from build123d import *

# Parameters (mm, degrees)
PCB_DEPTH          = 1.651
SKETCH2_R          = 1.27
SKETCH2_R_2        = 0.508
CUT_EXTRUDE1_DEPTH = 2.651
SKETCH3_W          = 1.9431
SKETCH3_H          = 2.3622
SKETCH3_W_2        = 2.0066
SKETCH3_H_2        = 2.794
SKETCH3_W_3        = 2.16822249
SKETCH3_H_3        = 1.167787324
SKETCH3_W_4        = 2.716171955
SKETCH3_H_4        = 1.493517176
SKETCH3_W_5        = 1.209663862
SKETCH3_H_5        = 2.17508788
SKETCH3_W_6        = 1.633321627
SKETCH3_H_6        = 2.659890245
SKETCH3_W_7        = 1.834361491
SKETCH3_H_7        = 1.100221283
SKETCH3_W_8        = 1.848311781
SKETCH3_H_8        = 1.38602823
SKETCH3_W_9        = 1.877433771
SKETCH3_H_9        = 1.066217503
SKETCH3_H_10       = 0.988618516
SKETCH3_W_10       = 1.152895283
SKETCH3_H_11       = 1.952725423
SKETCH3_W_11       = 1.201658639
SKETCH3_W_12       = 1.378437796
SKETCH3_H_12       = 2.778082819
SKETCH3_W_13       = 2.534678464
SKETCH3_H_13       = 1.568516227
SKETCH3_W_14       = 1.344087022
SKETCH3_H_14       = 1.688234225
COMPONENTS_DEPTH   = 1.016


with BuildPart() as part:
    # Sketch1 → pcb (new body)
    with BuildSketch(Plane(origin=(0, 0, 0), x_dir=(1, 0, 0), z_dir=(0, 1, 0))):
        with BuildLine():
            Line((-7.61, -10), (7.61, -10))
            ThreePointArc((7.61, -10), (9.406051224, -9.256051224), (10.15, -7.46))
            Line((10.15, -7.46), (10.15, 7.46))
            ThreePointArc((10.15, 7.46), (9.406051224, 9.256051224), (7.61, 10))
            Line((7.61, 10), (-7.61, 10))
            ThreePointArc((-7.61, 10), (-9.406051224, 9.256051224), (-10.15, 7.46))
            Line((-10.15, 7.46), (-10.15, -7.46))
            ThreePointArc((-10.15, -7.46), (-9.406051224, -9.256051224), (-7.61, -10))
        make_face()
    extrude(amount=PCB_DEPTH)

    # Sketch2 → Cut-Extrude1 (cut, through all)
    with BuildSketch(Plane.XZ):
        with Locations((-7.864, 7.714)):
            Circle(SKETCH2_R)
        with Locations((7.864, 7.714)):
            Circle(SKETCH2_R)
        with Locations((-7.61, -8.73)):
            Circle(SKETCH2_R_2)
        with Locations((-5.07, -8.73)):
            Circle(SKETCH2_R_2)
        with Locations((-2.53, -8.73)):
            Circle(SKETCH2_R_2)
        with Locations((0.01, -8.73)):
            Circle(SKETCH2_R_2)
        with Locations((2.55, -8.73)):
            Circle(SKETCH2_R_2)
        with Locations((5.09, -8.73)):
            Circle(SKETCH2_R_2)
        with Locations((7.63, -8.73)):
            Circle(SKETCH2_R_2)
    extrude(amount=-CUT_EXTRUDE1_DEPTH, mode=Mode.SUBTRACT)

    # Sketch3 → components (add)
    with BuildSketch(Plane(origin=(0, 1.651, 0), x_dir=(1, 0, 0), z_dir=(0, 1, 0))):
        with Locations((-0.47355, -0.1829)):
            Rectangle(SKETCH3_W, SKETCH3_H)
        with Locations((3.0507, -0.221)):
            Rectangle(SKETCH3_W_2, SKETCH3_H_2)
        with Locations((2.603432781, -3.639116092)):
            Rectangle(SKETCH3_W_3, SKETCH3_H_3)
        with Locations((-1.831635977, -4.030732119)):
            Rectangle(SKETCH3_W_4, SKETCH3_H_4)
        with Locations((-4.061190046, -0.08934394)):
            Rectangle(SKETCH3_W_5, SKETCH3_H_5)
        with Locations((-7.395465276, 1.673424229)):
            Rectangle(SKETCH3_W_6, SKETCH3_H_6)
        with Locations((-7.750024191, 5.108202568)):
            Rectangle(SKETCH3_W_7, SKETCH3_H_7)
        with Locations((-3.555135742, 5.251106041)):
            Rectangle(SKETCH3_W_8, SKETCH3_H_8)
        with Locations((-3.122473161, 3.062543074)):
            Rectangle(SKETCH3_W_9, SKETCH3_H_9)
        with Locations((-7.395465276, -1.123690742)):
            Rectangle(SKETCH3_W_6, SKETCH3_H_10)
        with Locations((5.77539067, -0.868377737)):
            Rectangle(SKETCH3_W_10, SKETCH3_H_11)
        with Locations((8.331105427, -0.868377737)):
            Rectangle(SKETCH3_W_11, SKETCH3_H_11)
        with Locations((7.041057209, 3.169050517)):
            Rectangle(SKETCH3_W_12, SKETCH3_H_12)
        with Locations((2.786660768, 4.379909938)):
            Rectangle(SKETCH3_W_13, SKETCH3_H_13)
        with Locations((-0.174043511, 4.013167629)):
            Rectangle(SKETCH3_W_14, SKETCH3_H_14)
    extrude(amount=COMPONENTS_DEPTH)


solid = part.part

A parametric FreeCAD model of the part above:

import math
import FreeCAD as App
import Part
import Sketcher
Q = App.Units.Quantity

doc = App.newDocument("Part")
body = doc.addObject("PartDesign::Body", "Body")

sketch1 = body.newObject("Sketcher::SketchObject", "Sketch")
sketch1.AttachmentSupport = (doc.getObject("XZ_Plane"), [""])
sketch1.MapMode = "FlatFace"
sketch1.addGeometry([
    Part.LineSegment(App.Vector(-7.6, 10, 0), App.Vector(7.6, 10, 0)),
    Part.ArcOfCircle(Part.Circle(App.Vector(7.6, 7.5, 0), App.Vector(0, 0, 1), 2.5), math.radians(0), math.radians(90)),
    Part.LineSegment(App.Vector(10.2, 7.5, 0), App.Vector(10.2, -7.5, 0)),
    Part.ArcOfCircle(Part.Circle(App.Vector(7.6, -7.5, 0), App.Vector(0, 0, 1), 2.5), math.radians(-90), math.radians(0)),
    Part.LineSegment(App.Vector(7.6, -10, 0), App.Vector(-7.6, -10, 0)),
    Part.ArcOfCircle(Part.Circle(App.Vector(-7.6, -7.5, 0), App.Vector(0, 0, 1), 2.5), math.radians(-180), math.radians(-90)),
    Part.LineSegment(App.Vector(-10.2, -7.5, 0), App.Vector(-10.2, 7.5, 0)),
    Part.ArcOfCircle(Part.Circle(App.Vector(-7.6, 7.5, 0), App.Vector(0, 0, 1), 2.5), math.radians(90), math.radians(180)),
], False)
sketch1.addConstraint([
    Sketcher.Constraint("Tangent", 0, 2, 1, 2),
    Sketcher.Constraint("Tangent", 1, 1, 2, 1),
    Sketcher.Constraint("Tangent", 2, 2, 3, 2),
    Sketcher.Constraint("Tangent", 3, 1, 4, 1),
    Sketcher.Constraint("Tangent", 4, 2, 5, 2),
    Sketcher.Constraint("Tangent", 5, 1, 6, 1),
    Sketcher.Constraint("Tangent", 6, 2, 7, 2),
    Sketcher.Constraint("Tangent", 7, 1, 0, 1),
    Sketcher.Constraint("Horizontal", 0),
    Sketcher.Constraint("Vertical", 2),
    Sketcher.Constraint("Horizontal", 4),
    Sketcher.Constraint("Vertical", 6),
    Sketcher.Constraint("Equal", 1, 3),
    Sketcher.Constraint("Equal", 3, 5),
    Sketcher.Constraint("Equal", 5, 7),
    Sketcher.Constraint("Symmetric", 1, 3, 5, 3, -1, 1),
    Sketcher.Constraint("Radius", 1, Q("0.1 in")),
    Sketcher.Constraint("DistanceX", 0, 1, 0, 2, Q("15.22 mm")),
    Sketcher.Constraint("DistanceY", 2, 2, 2, 1, Q("14.92 mm")),
])
pad1 = body.newObject("PartDesign::Pad", "Pad")
pad1.Profile = sketch1
pad1.Length = Q("0.065 in")
pad1.Reversed = True

sketch2 = body.newObject("Sketcher::SketchObject", "Sketch001")
sketch2.AttachmentSupport = (doc.getObject("XZ_Plane"), [""])
sketch2.MapMode = "FlatFace"
sketch2.addGeometry([
    Part.Circle(App.Vector(-7.9, 7.7, 0), App.Vector(0, 0, 1), 1.3),
    Part.Circle(App.Vector(7.9, 7.7, 0), App.Vector(0, 0, 1), 1.3),
    Part.Circle(App.Vector(-7.6, -8.7, 0), App.Vector(0, 0, 1), 0.5),
    Part.Circle(App.Vector(-5.1, -8.7, 0), App.Vector(0, 0, 1), 0.5),
    Part.Circle(App.Vector(-2.5, -8.7, 0), App.Vector(0, 0, 1), 0.5),
    Part.Circle(App.Vector(0, -8.7, 0), App.Vector(0, 0, 1), 0.5),
    Part.Circle(App.Vector(2.5, -8.7, 0), App.Vector(0, 0, 1), 0.5),
    Part.Circle(App.Vector(5.1, -8.7, 0), App.Vector(0, 0, 1), 0.5),
    Part.Circle(App.Vector(7.6, -8.7, 0), App.Vector(0, 0, 1), 0.5),
], False)
sketch2.addConstraint([
    Sketcher.Constraint("Equal", 0, 1),
    Sketcher.Constraint("Equal", 2, 3),
    Sketcher.Constraint("Equal", 3, 4),
    Sketcher.Constraint("Equal", 4, 5),
    Sketcher.Constraint("Equal", 5, 6),
    Sketcher.Constraint("Equal", 6, 7),
    Sketcher.Constraint("Equal", 7, 8),
    Sketcher.Constraint("Symmetric", 0, 3, 1, 3, -2),
    Sketcher.Constraint("Horizontal", 2, 3, 3, 3),
    Sketcher.Constraint("Horizontal", 3, 3, 4, 3),
    Sketcher.Constraint("Horizontal", 4, 3, 5, 3),
    Sketcher.Constraint("Horizontal", 5, 3, 6, 3),
    Sketcher.Constraint("Horizontal", 6, 3, 7, 3),
    Sketcher.Constraint("Horizontal", 7, 3, 8, 3),
    Sketcher.Constraint("Diameter", 0, Q("0.1 in")),
    Sketcher.Constraint("Diameter", 2, Q("0.04 in")),
    Sketcher.Constraint("DistanceX", 2, 3, 3, 3, Q("0.1 in")),
    Sketcher.Constraint("DistanceX", 3, 3, 4, 3, Q("0.1 in")),
    Sketcher.Constraint("DistanceX", 4, 3, 5, 3, Q("0.1 in")),
    Sketcher.Constraint("DistanceX", 5, 3, 6, 3, Q("0.1 in")),
    Sketcher.Constraint("DistanceX", 6, 3, 7, 3, Q("0.1 in")),
    Sketcher.Constraint("DistanceX", 7, 3, 8, 3, Q("0.1 in")),
    Sketcher.Constraint("DistanceX", 0, 3, 2, 3, Q("0.01 in")),
    Sketcher.Constraint("DistanceX", 0, 3, -1, 1, Q("7.864 mm")),
    Sketcher.Constraint("DistanceY", -1, 1, 0, 3, Q("7.714 mm")),
    Sketcher.Constraint("DistanceY", 2, 3, -1, 1, Q("8.73 mm")),
])
pocket1 = body.newObject("PartDesign::Pocket", "Pocket")
pocket1.Profile = sketch2
pocket1.Type = "ThroughAll"

sketch3 = body.newObject("Sketcher::SketchObject", "Sketch002")
sketch3.AttachmentSupport = (doc.getObject("XZ_Plane"), [""])
sketch3.MapMode = "FlatFace"
sketch3.AttachmentOffset = App.Placement(App.Vector(0, 0, -0.065 * 25.4), App.Rotation())
sketch3.addGeometry([
    Part.LineSegment(App.Vector(-1.4, -1, 0), App.Vector(-1.4, 1.4, 0)),
    Part.LineSegment(App.Vector(-1.4, 1.4, 0), App.Vector(0.5, 1.4, 0)),
    Part.LineSegment(App.Vector(0.5, 1.4, 0), App.Vector(0.5, -1, 0)),
    Part.LineSegment(App.Vector(0.5, -1, 0), App.Vector(-1.4, -1, 0)),
    Part.LineSegment(App.Vector(2, -1.2, 0), App.Vector(2, 1.6, 0)),
    Part.LineSegment(App.Vector(2, 1.6, 0), App.Vector(4.1, 1.6, 0)),
    Part.LineSegment(App.Vector(4.1, 1.6, 0), App.Vector(4.1, -1.2, 0)),
    Part.LineSegment(App.Vector(4.1, -1.2, 0), App.Vector(2, -1.2, 0)),
    Part.LineSegment(App.Vector(1.5, 3.1, 0), App.Vector(1.5, 4.2, 0)),
    Part.LineSegment(App.Vector(1.5, 4.2, 0), App.Vector(3.7, 4.2, 0)),
    Part.LineSegment(App.Vector(3.7, 4.2, 0), App.Vector(3.7, 3.1, 0)),
    Part.LineSegment(App.Vector(3.7, 3.1, 0), App.Vector(1.5, 3.1, 0)),
    Part.LineSegment(App.Vector(-3.2, 3.3, 0), App.Vector(-3.2, 4.8, 0)),
    Part.LineSegment(App.Vector(-3.2, 4.8, 0), App.Vector(-0.5, 4.8, 0)),
    Part.LineSegment(App.Vector(-0.5, 4.8, 0), App.Vector(-0.5, 3.3, 0)),
    Part.LineSegment(App.Vector(-0.5, 3.3, 0), App.Vector(-3.2, 3.3, 0)),
    Part.LineSegment(App.Vector(-4.7, -1, 0), App.Vector(-4.7, 1.2, 0)),
    Part.LineSegment(App.Vector(-4.7, 1.2, 0), App.Vector(-3.5, 1.2, 0)),
    Part.LineSegment(App.Vector(-3.5, 1.2, 0), App.Vector(-3.5, -1, 0)),
    Part.LineSegment(App.Vector(-3.5, -1, 0), App.Vector(-4.7, -1, 0)),
    Part.LineSegment(App.Vector(-8.2, -3, 0), App.Vector(-8.2, -0.3, 0)),
    Part.LineSegment(App.Vector(-8.2, -0.3, 0), App.Vector(-6.6, -0.3, 0)),
    Part.LineSegment(App.Vector(-6.6, -0.3, 0), App.Vector(-6.6, -3, 0)),
    Part.LineSegment(App.Vector(-6.6, -3, 0), App.Vector(-8.2, -3, 0)),
    Part.LineSegment(App.Vector(-8.7, -5.7, 0), App.Vector(-8.7, -4.6, 0)),
    Part.LineSegment(App.Vector(-8.7, -4.6, 0), App.Vector(-6.8, -4.6, 0)),
    Part.LineSegment(App.Vector(-6.8, -4.6, 0), App.Vector(-6.8, -5.7, 0)),
    Part.LineSegment(App.Vector(-6.8, -5.7, 0), App.Vector(-8.7, -5.7, 0)),
    Part.LineSegment(App.Vector(-4.5, -5.9, 0), App.Vector(-4.5, -4.6, 0)),
    Part.LineSegment(App.Vector(-4.5, -4.6, 0), App.Vector(-2.6, -4.6, 0)),
    Part.LineSegment(App.Vector(-2.6, -4.6, 0), App.Vector(-2.6, -5.9, 0)),
    Part.LineSegment(App.Vector(-2.6, -5.9, 0), App.Vector(-4.5, -5.9, 0)),
    Part.LineSegment(App.Vector(-4.1, -3.6, 0), App.Vector(-4.1, -2.5, 0)),
    Part.LineSegment(App.Vector(-4.1, -2.5, 0), App.Vector(-2.2, -2.5, 0)),
    Part.LineSegment(App.Vector(-2.2, -2.5, 0), App.Vector(-2.2, -3.6, 0)),
    Part.LineSegment(App.Vector(-2.2, -3.6, 0), App.Vector(-4.1, -3.6, 0)),
    Part.LineSegment(App.Vector(-8.2, 0.6, 0), App.Vector(-8.2, 1.6, 0)),
    Part.LineSegment(App.Vector(-8.2, 1.6, 0), App.Vector(-6.6, 1.6, 0)),
    Part.LineSegment(App.Vector(-6.6, 1.6, 0), App.Vector(-6.6, 0.6, 0)),
    Part.LineSegment(App.Vector(-6.6, 0.6, 0), App.Vector(-8.2, 0.6, 0)),
    Part.LineSegment(App.Vector(5.2, -0.1, 0), App.Vector(5.2, 1.8, 0)),
    Part.LineSegment(App.Vector(5.2, 1.8, 0), App.Vector(6.4, 1.8, 0)),
    Part.LineSegment(App.Vector(6.4, 1.8, 0), App.Vector(6.4, -0.1, 0)),
    Part.LineSegment(App.Vector(6.4, -0.1, 0), App.Vector(5.2, -0.1, 0)),
    Part.LineSegment(App.Vector(7.7, -0.1, 0), App.Vector(7.7, 1.8, 0)),
    Part.LineSegment(App.Vector(7.7, 1.8, 0), App.Vector(8.9, 1.8, 0)),
    Part.LineSegment(App.Vector(8.9, 1.8, 0), App.Vector(8.9, -0.1, 0)),
    Part.LineSegment(App.Vector(8.9, -0.1, 0), App.Vector(7.7, -0.1, 0)),
    Part.LineSegment(App.Vector(6.4, -4.6, 0), App.Vector(6.4, -1.8, 0)),
    Part.LineSegment(App.Vector(6.4, -1.8, 0), App.Vector(7.7, -1.8, 0)),
    Part.LineSegment(App.Vector(7.7, -1.8, 0), App.Vector(7.7, -4.6, 0)),
    Part.LineSegment(App.Vector(7.7, -4.6, 0), App.Vector(6.4, -4.6, 0)),
    Part.LineSegment(App.Vector(1.5, -5.2, 0), App.Vector(1.5, -3.6, 0)),
    Part.LineSegment(App.Vector(1.5, -3.6, 0), App.Vector(4.1, -3.6, 0)),
    Part.LineSegment(App.Vector(4.1, -3.6, 0), App.Vector(4.1, -5.2, 0)),
    Part.LineSegment(App.Vector(4.1, -5.2, 0), App.Vector(1.5, -5.2, 0)),
    Part.LineSegment(App.Vector(-0.8, -4.9, 0), App.Vector(-0.8, -3.2, 0)),
    Part.LineSegment(App.Vector(-0.8, -3.2, 0), App.Vector(0.5, -3.2, 0)),
    Part.LineSegment(App.Vector(0.5, -3.2, 0), App.Vector(0.5, -4.9, 0)),
    Part.LineSegment(App.Vector(0.5, -4.9, 0), App.Vector(-0.8, -4.9, 0)),
], False)
sketch3.addConstraint([
    Sketcher.Constraint("Coincident", 0, 2, 1, 1),
    Sketcher.Constraint("Coincident", 1, 2, 2, 1),
    Sketcher.Constraint("Coincident", 2, 2, 3, 1),
    Sketcher.Constraint("Coincident", 3, 2, 0, 1),
    Sketcher.Constraint("Coincident", 4, 2, 5, 1),
    Sketcher.Constraint("Coincident", 5, 2, 6, 1),
    Sketcher.Constraint("Coincident", 6, 2, 7, 1),
    Sketcher.Constraint("Coincident", 7, 2, 4, 1),
    Sketcher.Constraint("Coincident", 8, 2, 9, 1),
    Sketcher.Constraint("Coincident", 9, 2, 10, 1),
    Sketcher.Constraint("Coincident", 10, 2, 11, 1),
    Sketcher.Constraint("Coincident", 11, 2, 8, 1),
    Sketcher.Constraint("Coincident", 12, 2, 13, 1),
    Sketcher.Constraint("Coincident", 13, 2, 14, 1),
    Sketcher.Constraint("Coincident", 14, 2, 15, 1),
    Sketcher.Constraint("Coincident", 15, 2, 12, 1),
    Sketcher.Constraint("Coincident", 16, 2, 17, 1),
    Sketcher.Constraint("Coincident", 17, 2, 18, 1),
    Sketcher.Constraint("Coincident", 18, 2, 19, 1),
    Sketcher.Constraint("Coincident", 19, 2, 16, 1),
    Sketcher.Constraint("Coincident", 20, 2, 21, 1),
    Sketcher.Constraint("Coincident", 21, 2, 22, 1),
    Sketcher.Constraint("Coincident", 22, 2, 23, 1),
    Sketcher.Constraint("Coincident", 23, 2, 20, 1),
    Sketcher.Constraint("Coincident", 24, 2, 25, 1),
    Sketcher.Constraint("Coincident", 25, 2, 26, 1),
    Sketcher.Constraint("Coincident", 26, 2, 27, 1),
    Sketcher.Constraint("Coincident", 27, 2, 24, 1),
    Sketcher.Constraint("Coincident", 28, 2, 29, 1),
    Sketcher.Constraint("Coincident", 29, 2, 30, 1),
    Sketcher.Constraint("Coincident", 30, 2, 31, 1),
    Sketcher.Constraint("Coincident", 31, 2, 28, 1),
    Sketcher.Constraint("Coincident", 32, 2, 33, 1),
    Sketcher.Constraint("Coincident", 33, 2, 34, 1),
    Sketcher.Constraint("Coincident", 34, 2, 35, 1),
    Sketcher.Constraint("Coincident", 35, 2, 32, 1),
    Sketcher.Constraint("Coincident", 36, 2, 37, 1),
    Sketcher.Constraint("Coincident", 37, 2, 38, 1),
    Sketcher.Constraint("Coincident", 38, 2, 39, 1),
    Sketcher.Constraint("Coincident", 39, 2, 36, 1),
    Sketcher.Constraint("Coincident", 40, 2, 41, 1),
    Sketcher.Constraint("Coincident", 41, 2, 42, 1),
    Sketcher.Constraint("Coincident", 42, 2, 43, 1),
    Sketcher.Constraint("Coincident", 43, 2, 40, 1),
    Sketcher.Constraint("Coincident", 44, 2, 45, 1),
    Sketcher.Constraint("Coincident", 45, 2, 46, 1),
    Sketcher.Constraint("Coincident", 46, 2, 47, 1),
    Sketcher.Constraint("Coincident", 47, 2, 44, 1),
    Sketcher.Constraint("Coincident", 48, 2, 49, 1),
    Sketcher.Constraint("Coincident", 49, 2, 50, 1),
    Sketcher.Constraint("Coincident", 50, 2, 51, 1),
    Sketcher.Constraint("Coincident", 51, 2, 48, 1),
    Sketcher.Constraint("Coincident", 52, 2, 53, 1),
    Sketcher.Constraint("Coincident", 53, 2, 54, 1),
    Sketcher.Constraint("Coincident", 54, 2, 55, 1),
    Sketcher.Constraint("Coincident", 55, 2, 52, 1),
    Sketcher.Constraint("Coincident", 56, 2, 57, 1),
    Sketcher.Constraint("Coincident", 57, 2, 58, 1),
    Sketcher.Constraint("Coincident", 58, 2, 59, 1),
    Sketcher.Constraint("Coincident", 59, 2, 56, 1),
    Sketcher.Constraint("Vertical", 0),
    Sketcher.Constraint("Horizontal", 1),
    Sketcher.Constraint("Vertical", 2),
    Sketcher.Constraint("Horizontal", 3),
    Sketcher.Constraint("Vertical", 4),
    Sketcher.Constraint("Horizontal", 5),
    Sketcher.Constraint("Vertical", 6),
    Sketcher.Constraint("Horizontal", 7),
    Sketcher.Constraint("Vertical", 8),
    Sketcher.Constraint("Horizontal", 9),
    Sketcher.Constraint("Vertical", 10),
    Sketcher.Constraint("Horizontal", 11),
    Sketcher.Constraint("Vertical", 12),
    Sketcher.Constraint("Horizontal", 13),
    Sketcher.Constraint("Vertical", 14),
    Sketcher.Constraint("Horizontal", 15),
    Sketcher.Constraint("Vertical", 16),
    Sketcher.Constraint("Horizontal", 17),
    Sketcher.Constraint("Vertical", 18),
    Sketcher.Constraint("Horizontal", 19),
    Sketcher.Constraint("Vertical", 20),
    Sketcher.Constraint("Horizontal", 21),
    Sketcher.Constraint("Vertical", 22),
    Sketcher.Constraint("Horizontal", 23),
    Sketcher.Constraint("Vertical", 24),
    Sketcher.Constraint("Horizontal", 25),
    Sketcher.Constraint("Vertical", 26),
    Sketcher.Constraint("Horizontal", 27),
    Sketcher.Constraint("Vertical", 28),
    Sketcher.Constraint("Horizontal", 29),
    Sketcher.Constraint("Vertical", 30),
    Sketcher.Constraint("Horizontal", 31),
    Sketcher.Constraint("Vertical", 32),
    Sketcher.Constraint("Horizontal", 33),
    Sketcher.Constraint("Vertical", 34),
    Sketcher.Constraint("Horizontal", 35),
    Sketcher.Constraint("Vertical", 36),
    Sketcher.Constraint("Horizontal", 37),
    Sketcher.Constraint("Vertical", 38),
    Sketcher.Constraint("Horizontal", 39),
    Sketcher.Constraint("Vertical", 40),
    Sketcher.Constraint("Horizontal", 41),
    Sketcher.Constraint("Vertical", 42),
    Sketcher.Constraint("Horizontal", 43),
    Sketcher.Constraint("Vertical", 44),
    Sketcher.Constraint("Horizontal", 45),
    Sketcher.Constraint("Vertical", 46),
    Sketcher.Constraint("Horizontal", 47),
    Sketcher.Constraint("Vertical", 48),
    Sketcher.Constraint("Horizontal", 49),
    Sketcher.Constraint("Vertical", 50),
    Sketcher.Constraint("Horizontal", 51),
    Sketcher.Constraint("Vertical", 52),
    Sketcher.Constraint("Horizontal", 53),
    Sketcher.Constraint("Vertical", 54),
    Sketcher.Constraint("Horizontal", 55),
    Sketcher.Constraint("Vertical", 56),
    Sketcher.Constraint("Horizontal", 57),
    Sketcher.Constraint("Vertical", 58),
    Sketcher.Constraint("Horizontal", 59),
    Sketcher.Constraint("Horizontal", 3, 2, 18, 2),
    Sketcher.Constraint("Horizontal", 25, 2, 28, 2),
    Sketcher.Constraint("Horizontal", 5, 2, 36, 2),
    Sketcher.Constraint("Horizontal", 41, 2, 44, 2),
    Sketcher.Constraint("Horizontal", 43, 2, 46, 2),
    Sketcher.Constraint("Horizontal", 29, 2, 50, 2),
    Sketcher.Constraint("Horizontal", 35, 2, 52, 2),
    Sketcher.Constraint("Vertical", 23, 2, 36, 2),
    Sketcher.Constraint("Vertical", 22, 2, 37, 2),
    Sketcher.Constraint("Vertical", 42, 2, 48, 2),
    Sketcher.Constraint("Vertical", 47, 2, 49, 2),
    Sketcher.Constraint("Vertical", 11, 2, 52, 2),
    Sketcher.Constraint("Vertical", 6, 2, 53, 2),
    Sketcher.Constraint("Vertical", 2, 2, 57, 2),
    Sketcher.Constraint("DistanceY", 4, 1, 4, 2, Q("0.11 in")),
    Sketcher.Constraint("DistanceY", 6, 2, 1, 2, Q("0.1 in")),
    Sketcher.Constraint("DistanceX", 5, 1, 5, 2, Q("0.079 in")),
    Sketcher.Constraint("DistanceY", 0, 1, 0, 2, Q("0.093 in")),
    Sketcher.Constraint("DistanceX", 1, 2, 5, 2, Q("0.14 in")),
    Sketcher.Constraint("DistanceX", 1, 1, 1, 2, Q("0.0765 in")),
    Sketcher.Constraint("DistanceY", 12, 1, 12, 2, Q("0.0587999 in")),
    Sketcher.Constraint("DistanceX", 13, 1, 13, 2, Q("2.716172 mm")),
    Sketcher.Constraint("DistanceX", 21, 1, 21, 2, Q("1.633322 mm")),
    Sketcher.Constraint("DistanceX", 25, 1, 25, 2, Q("1.834361 mm")),
    Sketcher.Constraint("DistanceX", 29, 1, 29, 2, Q("1.848312 mm")),
    Sketcher.Constraint("DistanceX", 45, 1, 45, 2, Q("1.201659 mm")),
    Sketcher.Constraint("DistanceX", 53, 1, 53, 2, Q("2.534678 mm")),
    Sketcher.Constraint("DistanceY", 20, 1, 20, 2, Q("2.65989 mm")),
    Sketcher.Constraint("DistanceY", 24, 1, 24, 2, Q("1.100221 mm")),
    Sketcher.Constraint("DistanceY", 28, 1, 28, 2, Q("1.386028 mm")),
    Sketcher.Constraint("DistanceY", 36, 1, 36, 2, Q("0.988619 mm")),
    Sketcher.Constraint("DistanceX", 0, 2, -1, 1, Q("1.4451 mm")),
    Sketcher.Constraint("DistanceY", -1, 1, 0, 2, Q("1.364 mm")),
    Sketcher.Constraint("DistanceX", 16, 2, 15, 2, Q("1.4763 mm")),
    Sketcher.Constraint("DistanceX", 24, 2, 22, 2, Q("2.0884 mm")),
    Sketcher.Constraint("DistanceX", 28, 2, 32, 2, Q("0.418102 mm")),
    Sketcher.Constraint("DistanceX", 18, 2, 33, 2, Q("1.272602 mm")),
    Sketcher.Constraint("DistanceX", 10, 2, 40, 2, Q("1.511399 mm")),
    Sketcher.Constraint("DistanceY", 34, 2, 56, 2, Q("0.426601 mm")),
    Sketcher.Constraint("DistanceX", 9, 1, 9, 2, Q("2.168222 mm")),
    Sketcher.Constraint("DistanceX", 17, 1, 17, 2, Q("1.209664 mm")),
    Sketcher.Constraint("DistanceX", 33, 1, 33, 2, Q("1.877434 mm")),
    Sketcher.Constraint("DistanceX", 41, 1, 41, 2, Q("1.152895 mm")),
    Sketcher.Constraint("DistanceX", 49, 1, 49, 2, Q("1.378438 mm")),
    Sketcher.Constraint("DistanceX", 57, 1, 57, 2, Q("1.344087 mm")),
    Sketcher.Constraint("DistanceY", 8, 1, 8, 2, Q("1.167787 mm")),
    Sketcher.Constraint("DistanceY", 16, 1, 16, 2, Q("2.175088 mm")),
    Sketcher.Constraint("DistanceY", 32, 1, 32, 2, Q("1.066218 mm")),
    Sketcher.Constraint("DistanceY", 40, 1, 40, 2, Q("1.952725 mm")),
    Sketcher.Constraint("DistanceY", 48, 1, 48, 2, Q("2.778083 mm")),
    Sketcher.Constraint("DistanceY", 52, 1, 52, 2, Q("1.568516 mm")),
    Sketcher.Constraint("DistanceY", 56, 1, 56, 2, Q("1.688234 mm")),
    Sketcher.Constraint("DistanceY", -1, 1, 8, 2, Q("4.22301 mm")),
    Sketcher.Constraint("DistanceX", 12, 2, -1, 1, Q("3.189722 mm")),
    Sketcher.Constraint("DistanceY", -1, 1, 12, 2, Q("4.777491 mm")),
    Sketcher.Constraint("DistanceY", 20, 2, -1, 1, Q("0.343479 mm")),
    Sketcher.Constraint("DistanceY", 24, 2, -1, 1, Q("4.558092 mm")),
    Sketcher.Constraint("DistanceY", 34, 2, -1, 1, Q("3.595652 mm")),
    Sketcher.Constraint("DistanceY", -1, 1, 40, 2, Q("1.84474 mm")),
    Sketcher.Constraint("DistanceX", 25, 2, 19, 2, Q("2.166821 mm")),
])
pad2 = body.newObject("PartDesign::Pad", "Pad001")
pad2.Profile = sketch3
pad2.Length = Q("0.04 in")
pad2.Reversed = True

doc.recompute()
